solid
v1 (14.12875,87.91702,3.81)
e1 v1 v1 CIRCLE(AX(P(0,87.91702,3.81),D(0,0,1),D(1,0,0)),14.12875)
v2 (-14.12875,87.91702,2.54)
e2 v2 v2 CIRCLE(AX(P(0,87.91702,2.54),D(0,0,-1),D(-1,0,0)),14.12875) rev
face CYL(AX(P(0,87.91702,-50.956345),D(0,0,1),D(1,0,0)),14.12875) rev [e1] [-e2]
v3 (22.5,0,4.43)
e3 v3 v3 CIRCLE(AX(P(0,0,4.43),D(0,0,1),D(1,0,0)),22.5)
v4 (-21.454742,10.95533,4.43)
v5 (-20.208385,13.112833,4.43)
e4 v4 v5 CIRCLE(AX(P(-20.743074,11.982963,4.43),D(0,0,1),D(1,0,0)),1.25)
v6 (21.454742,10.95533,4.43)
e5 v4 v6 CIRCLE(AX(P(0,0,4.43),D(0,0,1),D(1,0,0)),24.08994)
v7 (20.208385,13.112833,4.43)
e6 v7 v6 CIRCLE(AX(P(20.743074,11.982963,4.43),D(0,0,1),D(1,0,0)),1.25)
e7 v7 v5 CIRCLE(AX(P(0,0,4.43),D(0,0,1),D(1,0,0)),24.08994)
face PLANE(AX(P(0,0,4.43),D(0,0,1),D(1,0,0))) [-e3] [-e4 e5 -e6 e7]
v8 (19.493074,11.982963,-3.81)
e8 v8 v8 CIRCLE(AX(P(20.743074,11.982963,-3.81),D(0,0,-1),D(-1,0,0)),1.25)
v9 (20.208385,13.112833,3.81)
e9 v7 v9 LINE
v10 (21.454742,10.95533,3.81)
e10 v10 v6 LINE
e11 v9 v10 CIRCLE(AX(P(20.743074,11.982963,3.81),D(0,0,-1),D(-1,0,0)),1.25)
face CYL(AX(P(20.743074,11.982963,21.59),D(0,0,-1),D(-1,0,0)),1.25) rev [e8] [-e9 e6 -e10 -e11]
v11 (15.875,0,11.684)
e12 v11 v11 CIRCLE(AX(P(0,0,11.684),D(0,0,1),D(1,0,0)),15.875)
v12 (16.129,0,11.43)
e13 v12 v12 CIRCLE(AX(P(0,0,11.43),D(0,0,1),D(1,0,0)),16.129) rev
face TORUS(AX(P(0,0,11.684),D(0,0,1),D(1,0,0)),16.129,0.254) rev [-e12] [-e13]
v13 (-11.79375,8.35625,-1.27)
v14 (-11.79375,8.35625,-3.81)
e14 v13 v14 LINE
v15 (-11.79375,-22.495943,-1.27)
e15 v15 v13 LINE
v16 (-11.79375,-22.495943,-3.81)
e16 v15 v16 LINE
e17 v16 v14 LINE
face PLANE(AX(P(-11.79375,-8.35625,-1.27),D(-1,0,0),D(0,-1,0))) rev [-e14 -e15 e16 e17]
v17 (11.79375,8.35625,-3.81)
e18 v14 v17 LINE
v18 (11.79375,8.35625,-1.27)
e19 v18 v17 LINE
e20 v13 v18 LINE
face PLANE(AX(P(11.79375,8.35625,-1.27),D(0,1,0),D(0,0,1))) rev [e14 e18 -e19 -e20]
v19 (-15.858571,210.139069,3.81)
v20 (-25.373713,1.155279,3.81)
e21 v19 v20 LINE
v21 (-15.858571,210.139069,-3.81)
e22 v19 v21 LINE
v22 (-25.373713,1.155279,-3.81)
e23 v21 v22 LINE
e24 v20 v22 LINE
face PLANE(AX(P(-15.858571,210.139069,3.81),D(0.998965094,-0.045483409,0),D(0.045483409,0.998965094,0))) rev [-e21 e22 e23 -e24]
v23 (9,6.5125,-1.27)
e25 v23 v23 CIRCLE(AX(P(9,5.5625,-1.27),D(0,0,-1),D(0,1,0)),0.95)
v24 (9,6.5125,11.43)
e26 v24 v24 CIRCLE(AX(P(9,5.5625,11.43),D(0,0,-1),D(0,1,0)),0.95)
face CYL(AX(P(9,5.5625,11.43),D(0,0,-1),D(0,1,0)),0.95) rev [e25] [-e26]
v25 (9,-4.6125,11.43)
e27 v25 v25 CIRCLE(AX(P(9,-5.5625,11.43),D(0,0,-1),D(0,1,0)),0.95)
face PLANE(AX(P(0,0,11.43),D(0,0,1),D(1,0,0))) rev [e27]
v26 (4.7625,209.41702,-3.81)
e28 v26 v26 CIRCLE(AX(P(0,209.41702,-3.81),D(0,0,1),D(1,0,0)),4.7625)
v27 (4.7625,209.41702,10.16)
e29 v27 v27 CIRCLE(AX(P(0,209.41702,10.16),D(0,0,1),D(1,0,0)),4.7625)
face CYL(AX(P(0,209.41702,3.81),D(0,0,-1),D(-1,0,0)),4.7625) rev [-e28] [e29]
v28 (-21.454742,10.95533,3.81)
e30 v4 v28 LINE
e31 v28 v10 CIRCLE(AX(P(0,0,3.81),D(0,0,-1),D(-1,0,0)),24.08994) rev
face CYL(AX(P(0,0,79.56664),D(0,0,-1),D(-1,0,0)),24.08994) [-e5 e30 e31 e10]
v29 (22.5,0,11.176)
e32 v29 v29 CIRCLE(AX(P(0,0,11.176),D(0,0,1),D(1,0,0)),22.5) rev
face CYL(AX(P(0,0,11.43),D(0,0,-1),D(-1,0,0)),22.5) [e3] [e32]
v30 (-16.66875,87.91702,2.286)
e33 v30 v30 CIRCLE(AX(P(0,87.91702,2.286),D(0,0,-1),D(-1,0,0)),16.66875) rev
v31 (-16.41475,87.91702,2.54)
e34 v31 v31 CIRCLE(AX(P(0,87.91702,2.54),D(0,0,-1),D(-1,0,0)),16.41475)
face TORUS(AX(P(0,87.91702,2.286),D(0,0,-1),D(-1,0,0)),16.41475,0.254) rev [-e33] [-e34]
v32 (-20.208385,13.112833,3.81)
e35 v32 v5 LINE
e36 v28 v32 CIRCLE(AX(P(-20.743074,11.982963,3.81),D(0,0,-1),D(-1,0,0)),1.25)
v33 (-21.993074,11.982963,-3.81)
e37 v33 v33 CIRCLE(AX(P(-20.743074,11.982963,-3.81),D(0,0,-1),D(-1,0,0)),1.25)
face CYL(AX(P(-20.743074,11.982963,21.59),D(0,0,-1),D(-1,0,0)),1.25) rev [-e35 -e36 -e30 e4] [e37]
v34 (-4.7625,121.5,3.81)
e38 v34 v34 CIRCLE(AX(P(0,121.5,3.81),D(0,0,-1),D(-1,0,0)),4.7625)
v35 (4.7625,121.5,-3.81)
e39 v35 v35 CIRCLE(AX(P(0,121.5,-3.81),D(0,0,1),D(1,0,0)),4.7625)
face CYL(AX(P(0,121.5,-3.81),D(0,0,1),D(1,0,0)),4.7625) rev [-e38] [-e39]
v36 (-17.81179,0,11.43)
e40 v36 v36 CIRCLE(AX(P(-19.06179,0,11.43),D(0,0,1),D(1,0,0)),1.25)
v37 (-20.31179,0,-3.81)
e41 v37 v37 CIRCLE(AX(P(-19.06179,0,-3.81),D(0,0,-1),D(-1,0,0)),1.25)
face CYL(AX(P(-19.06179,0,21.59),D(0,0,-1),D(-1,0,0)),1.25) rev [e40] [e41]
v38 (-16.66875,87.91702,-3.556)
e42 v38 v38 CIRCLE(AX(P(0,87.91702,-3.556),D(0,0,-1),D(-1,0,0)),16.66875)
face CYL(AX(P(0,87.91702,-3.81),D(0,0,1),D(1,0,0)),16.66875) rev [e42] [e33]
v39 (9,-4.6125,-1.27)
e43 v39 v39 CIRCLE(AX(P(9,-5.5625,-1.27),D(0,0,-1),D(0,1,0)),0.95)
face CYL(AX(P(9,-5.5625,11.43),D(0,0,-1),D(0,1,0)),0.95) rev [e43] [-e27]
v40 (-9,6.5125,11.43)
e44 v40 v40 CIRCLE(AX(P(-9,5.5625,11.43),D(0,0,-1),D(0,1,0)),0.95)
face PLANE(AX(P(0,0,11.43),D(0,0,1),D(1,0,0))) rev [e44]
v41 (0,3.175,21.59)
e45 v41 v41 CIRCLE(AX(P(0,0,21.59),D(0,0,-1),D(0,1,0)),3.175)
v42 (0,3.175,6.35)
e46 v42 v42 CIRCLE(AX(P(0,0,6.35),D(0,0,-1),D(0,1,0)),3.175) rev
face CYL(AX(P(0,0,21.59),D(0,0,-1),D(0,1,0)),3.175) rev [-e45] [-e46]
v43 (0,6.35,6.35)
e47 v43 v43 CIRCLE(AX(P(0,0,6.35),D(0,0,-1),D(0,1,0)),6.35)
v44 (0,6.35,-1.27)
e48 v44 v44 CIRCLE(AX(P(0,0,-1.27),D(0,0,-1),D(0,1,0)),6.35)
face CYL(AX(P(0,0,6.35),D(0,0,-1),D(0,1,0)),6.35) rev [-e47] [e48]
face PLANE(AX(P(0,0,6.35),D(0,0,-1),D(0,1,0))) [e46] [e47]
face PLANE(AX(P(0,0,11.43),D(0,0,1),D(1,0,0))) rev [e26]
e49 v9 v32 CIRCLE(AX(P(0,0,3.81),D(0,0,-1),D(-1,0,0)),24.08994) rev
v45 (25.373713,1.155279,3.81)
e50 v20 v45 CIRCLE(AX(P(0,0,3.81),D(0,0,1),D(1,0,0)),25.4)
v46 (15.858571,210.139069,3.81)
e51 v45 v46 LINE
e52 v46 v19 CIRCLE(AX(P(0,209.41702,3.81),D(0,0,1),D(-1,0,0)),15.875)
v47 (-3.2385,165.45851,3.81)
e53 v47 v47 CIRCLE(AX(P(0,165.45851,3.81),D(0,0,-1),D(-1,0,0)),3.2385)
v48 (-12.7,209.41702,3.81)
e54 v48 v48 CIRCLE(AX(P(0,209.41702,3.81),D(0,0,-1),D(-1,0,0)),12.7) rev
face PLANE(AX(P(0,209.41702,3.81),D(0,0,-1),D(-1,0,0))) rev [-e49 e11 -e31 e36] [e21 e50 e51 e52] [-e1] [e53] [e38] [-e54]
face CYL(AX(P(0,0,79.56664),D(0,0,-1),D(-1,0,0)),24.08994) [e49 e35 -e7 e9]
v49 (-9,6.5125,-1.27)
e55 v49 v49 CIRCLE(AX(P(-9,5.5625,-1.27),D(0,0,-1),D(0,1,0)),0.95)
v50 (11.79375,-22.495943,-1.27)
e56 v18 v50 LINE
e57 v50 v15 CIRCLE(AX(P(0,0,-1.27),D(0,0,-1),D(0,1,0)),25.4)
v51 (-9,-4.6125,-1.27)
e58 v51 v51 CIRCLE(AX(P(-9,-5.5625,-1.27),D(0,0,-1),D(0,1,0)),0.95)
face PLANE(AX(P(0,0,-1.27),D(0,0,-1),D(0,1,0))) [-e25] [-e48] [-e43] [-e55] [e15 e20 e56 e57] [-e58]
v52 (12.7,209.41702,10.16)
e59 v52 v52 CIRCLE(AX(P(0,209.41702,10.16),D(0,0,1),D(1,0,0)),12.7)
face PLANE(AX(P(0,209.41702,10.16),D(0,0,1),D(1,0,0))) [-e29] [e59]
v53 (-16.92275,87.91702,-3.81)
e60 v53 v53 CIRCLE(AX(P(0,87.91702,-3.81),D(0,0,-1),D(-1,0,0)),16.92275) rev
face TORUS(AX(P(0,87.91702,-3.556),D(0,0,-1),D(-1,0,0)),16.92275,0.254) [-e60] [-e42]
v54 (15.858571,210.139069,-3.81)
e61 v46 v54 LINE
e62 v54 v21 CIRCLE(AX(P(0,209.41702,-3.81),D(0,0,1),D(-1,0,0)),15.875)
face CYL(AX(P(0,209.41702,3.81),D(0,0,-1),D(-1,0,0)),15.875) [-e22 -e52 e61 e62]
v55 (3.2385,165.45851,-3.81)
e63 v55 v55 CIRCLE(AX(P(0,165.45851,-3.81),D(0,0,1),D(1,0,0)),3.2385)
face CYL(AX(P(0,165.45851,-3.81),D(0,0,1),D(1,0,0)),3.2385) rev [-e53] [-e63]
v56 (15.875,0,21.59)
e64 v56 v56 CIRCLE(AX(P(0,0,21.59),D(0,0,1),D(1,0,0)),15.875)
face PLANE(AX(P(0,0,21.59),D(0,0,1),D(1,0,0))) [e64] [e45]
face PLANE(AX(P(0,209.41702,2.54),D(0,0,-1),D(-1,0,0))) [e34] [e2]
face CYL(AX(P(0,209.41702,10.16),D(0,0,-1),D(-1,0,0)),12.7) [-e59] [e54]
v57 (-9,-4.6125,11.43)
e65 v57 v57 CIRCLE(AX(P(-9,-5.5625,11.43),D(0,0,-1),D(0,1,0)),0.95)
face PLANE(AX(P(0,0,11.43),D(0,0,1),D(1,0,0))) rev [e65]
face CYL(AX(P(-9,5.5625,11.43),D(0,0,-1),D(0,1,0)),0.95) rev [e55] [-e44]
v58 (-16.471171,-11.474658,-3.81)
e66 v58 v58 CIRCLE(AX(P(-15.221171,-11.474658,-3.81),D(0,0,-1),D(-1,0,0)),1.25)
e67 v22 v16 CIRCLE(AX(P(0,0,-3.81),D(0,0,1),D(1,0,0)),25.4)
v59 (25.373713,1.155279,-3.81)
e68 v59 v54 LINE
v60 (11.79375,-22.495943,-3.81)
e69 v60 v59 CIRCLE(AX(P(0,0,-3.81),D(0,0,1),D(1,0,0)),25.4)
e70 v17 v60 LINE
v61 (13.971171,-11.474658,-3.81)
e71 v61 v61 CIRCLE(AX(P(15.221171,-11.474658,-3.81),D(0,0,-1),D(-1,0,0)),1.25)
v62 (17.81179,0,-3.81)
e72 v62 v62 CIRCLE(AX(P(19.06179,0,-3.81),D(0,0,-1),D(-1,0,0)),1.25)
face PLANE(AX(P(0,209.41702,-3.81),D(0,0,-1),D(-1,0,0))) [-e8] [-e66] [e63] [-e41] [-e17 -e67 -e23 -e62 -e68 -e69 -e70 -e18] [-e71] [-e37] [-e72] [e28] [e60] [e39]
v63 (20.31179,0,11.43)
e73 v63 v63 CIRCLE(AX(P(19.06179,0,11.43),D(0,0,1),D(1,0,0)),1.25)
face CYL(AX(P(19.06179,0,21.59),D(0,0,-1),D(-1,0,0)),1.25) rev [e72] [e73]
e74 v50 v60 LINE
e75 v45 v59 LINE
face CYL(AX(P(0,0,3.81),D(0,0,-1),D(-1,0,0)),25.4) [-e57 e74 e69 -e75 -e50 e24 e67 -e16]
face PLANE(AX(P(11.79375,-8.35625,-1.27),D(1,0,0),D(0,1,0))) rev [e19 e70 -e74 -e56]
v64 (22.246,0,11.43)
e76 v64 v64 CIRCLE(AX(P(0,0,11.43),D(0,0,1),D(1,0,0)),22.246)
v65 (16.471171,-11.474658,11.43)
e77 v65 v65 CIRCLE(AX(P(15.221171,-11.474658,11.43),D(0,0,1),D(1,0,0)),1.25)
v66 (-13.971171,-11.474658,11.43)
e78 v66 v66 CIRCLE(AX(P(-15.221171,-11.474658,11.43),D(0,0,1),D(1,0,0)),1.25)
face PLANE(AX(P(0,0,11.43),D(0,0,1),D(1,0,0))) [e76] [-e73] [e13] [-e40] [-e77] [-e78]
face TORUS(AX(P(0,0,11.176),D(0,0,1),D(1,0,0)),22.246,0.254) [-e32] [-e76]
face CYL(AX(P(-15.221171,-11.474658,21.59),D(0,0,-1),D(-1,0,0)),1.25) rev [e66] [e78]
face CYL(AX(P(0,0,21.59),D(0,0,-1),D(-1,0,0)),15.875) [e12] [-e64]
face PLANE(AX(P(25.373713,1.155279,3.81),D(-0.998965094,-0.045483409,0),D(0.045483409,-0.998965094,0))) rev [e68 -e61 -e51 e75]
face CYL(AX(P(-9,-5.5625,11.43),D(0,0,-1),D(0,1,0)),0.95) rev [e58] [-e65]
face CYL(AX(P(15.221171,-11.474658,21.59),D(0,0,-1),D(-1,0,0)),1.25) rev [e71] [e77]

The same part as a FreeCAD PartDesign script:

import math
import FreeCAD as App
import Part
import Sketcher
from FreeCAD import Vector
Q = App.Units.Quantity


def edges_at(feature, points):
    """Names of the edges that pass closest to the given points."""
    edges = feature.Shape.Edges
    near = lambda p: min(range(len(edges)), key=lambda i: edges[i].distToShape(Part.Vertex(*p))[0])
    return sorted({f"Edge{near(p) + 1}" for p in points})

doc = App.newDocument("Part")
body = doc.addObject("PartDesign::Body", "Body")

sketch1 = body.newObject("Sketcher::SketchObject", "Sketch")
sketch1.AttachmentSupport = (doc.getObject("XY_Plane"), [""])
sketch1.MapMode = "FlatFace"
sketch1.addGeometry([
    Part.LineSegment(Vector(25.4, 1.2, 0), Vector(15.9, 210.1, 0)),
    Part.ArcOfCircle(Part.Circle(Vector(0, 209.4, 0), Vector(0, 0, 1), 15.9), math.radians(3), math.radians(177)),
    Part.LineSegment(Vector(-15.9, 210.1, 0), Vector(-25.4, 1.2, 0)),
    Part.ArcOfCircle(Part.Circle(Vector(0, 0, 0), Vector(0, 0, 1), 25.4), math.radians(177), math.radians(363)),
    Part.Circle(Vector(0, 209.4, 0), Vector(0, 0, 1), 4.8),
], False)
sketch1.addConstraint([
    Sketcher.Constraint("Tangent", 0, 2, 1, 1),
    Sketcher.Constraint("Tangent", 1, 2, 2, 1),
    Sketcher.Constraint("Tangent", 2, 2, 3, 1),
    Sketcher.Constraint("Tangent", 3, 2, 0, 1),
    Sketcher.Constraint("Coincident", 3, 3, -1, 1),
    Sketcher.Constraint("Coincident", 4, 3, 1, 3),
    Sketcher.Constraint("PointOnObject", 1, 3, -2),
    Sketcher.Constraint("Radius", 3, Q("1 in")),
    Sketcher.Constraint("Diameter", 4, Q("0.375 in")),
    Sketcher.Constraint("Radius", 1, Q("0.625 in")),
    Sketcher.Constraint("DistanceY", -1, 1, 1, 3, Q("209.41702 mm")),
])
pad1 = body.newObject("PartDesign::Pad", "Pad")
pad1.Profile = sketch1
pad1.Length = Q("0.3 in")
pad1.Midplane = True

sketch2 = body.newObject("Sketcher::SketchObject", "Sketch001")
sketch2.AttachmentSupport = (doc.getObject("XY_Plane"), [""])
sketch2.MapMode = "FlatFace"
sketch2.AttachmentOffset = App.Placement(Vector(0, 0, 0.15 * 25.4), App.Rotation())
sketch2.addGeometry(Part.Circle(Vector(0, 0, 0), Vector(0, 0, 1), 22), False)
sketch2.addConstraint([
    Sketcher.Constraint("Coincident", 0, 3, -1, 1),
    Sketcher.Constraint("Diameter", 0, Q("45 mm")),
])
pad2 = body.newObject("PartDesign::Pad", "Pad001")
pad2.Profile = sketch2
pad2.Length = Q("0.3 in")

sketch3 = body.newObject("Sketcher::SketchObject", "Sketch002")
sketch3.AttachmentSupport = (doc.getObject("XY_Plane"), [""])
sketch3.MapMode = "FlatFace"
sketch3.AttachmentOffset = App.Placement(Vector(0, 0, 0.15 * 25.4), App.Rotation())
sketch3.addGeometry(Part.Circle(Vector(0, 0, 0), Vector(0, 0, 1), 24), False)
sketch3.addConstraint([
    Sketcher.Constraint("Coincident", 0, 3, -1, 1),
    Sketcher.Constraint("Diameter", 0, Q("48.17988 mm")),
])
pad3 = body.newObject("PartDesign::Pad", "Pad002")
pad3.Profile = sketch3
pad3.Length = 0.62

sketch4 = body.newObject("Sketcher::SketchObject", "Sketch003")
sketch4.AttachmentSupport = (doc.getObject("XY_Plane"), [""])
sketch4.MapMode = "FlatFace"
sketch4.AttachmentOffset = App.Placement(Vector(0, 0, 0.15 * 25.4), App.Rotation())
sketch4.addGeometry([
    Part.Circle(Vector(0, 87.9, 0), Vector(0, 0, 1), 16.7),
    Part.Circle(Vector(0, 121.5, 0), Vector(0, 0, 1), 4.8),
], False)
sketch4.addConstraint([
    Sketcher.Constraint("PointOnObject", 0, 3, -2),
    Sketcher.Constraint("PointOnObject", 1, 3, -2),
    Sketcher.Constraint("Diameter", 0, Q("1.3125 in")),
    Sketcher.Constraint("Diameter", 1, Q("0.375 in")),
    Sketcher.Constraint("DistanceY", -1, 1, 0, 3, Q("3.4613 in")),
    Sketcher.Constraint("DistanceY", -1, 1, 1, 3, Q("121.5 mm")),
])
pocket1 = body.newObject("PartDesign::Pocket", "Pocket")
pocket1.Profile = sketch4
pocket1.Type = "ThroughAll"
pocket1.Midplane = True

sketch5 = body.newObject("Sketcher::SketchObject", "Sketch004")
sketch5.AttachmentSupport = (doc.getObject("XY_Plane"), [""])
sketch5.MapMode = "FlatFace"
sketch5.AttachmentOffset = App.Placement(Vector(0, 0, 0.15 * 25.4), App.Rotation())
sketch5.addGeometry([
    Part.Circle(Vector(0, 88, 0), Vector(0, 0, 1), 17),
    Part.Circle(Vector(0, 88, 0), Vector(0, 0, 1), 14),
], False)
sketch5.addConstraint([
    Sketcher.Constraint("Coincident", 1, 3, 0, 3),
    Sketcher.Constraint("PointOnObject", 0, 3, -2),
    Sketcher.Constraint("Diameter", 0, Q("1.3125 in")),
    Sketcher.Constraint("Diameter", 1, Q("1.1125 in")),
    Sketcher.Constraint("DistanceY", -1, 1, 0, 3, Q("3.4613 in")),
])
pad4 = body.newObject("PartDesign::Pad", "Pad003")
pad4.Profile = sketch5
pad4.Length = Q("0.05 in")
pad4.Reversed = True

sketch6 = body.newObject("Sketcher::SketchObject", "Sketch005")
sketch6.AttachmentSupport = (doc.getObject("XY_Plane"), [""])
sketch6.MapMode = "FlatFace"
sketch6.AttachmentOffset = App.Placement(Vector(0, 0, -0.15 * 25.4), App.Rotation())
sketch6.addGeometry([
    Part.LineSegment(Vector(-12, 8, 0), Vector(12, 8, 0)),
    Part.LineSegment(Vector(12, 8, 0), Vector(12, -22, 0)),
    Part.ArcOfCircle(Part.Circle(Vector(0, 0, 0), Vector(0, 0, 1), 25), math.radians(-118), math.radians(-62)),
    Part.LineSegment(Vector(-12, -22, 0), Vector(-12, 8, 0)),
], False)
sketch6.addConstraint([
    Sketcher.Constraint("Coincident", 0, 2, 1, 1),
    Sketcher.Constraint("Coincident", 1, 2, 2, 2),
    Sketcher.Constraint("Coincident", 2, 1, 3, 1),
    Sketcher.Constraint("Coincident", 3, 2, 0, 1),
    Sketcher.Constraint("Horizontal", 0),
    Sketcher.Constraint("Vertical", 1),
    Sketcher.Constraint("Vertical", 3),
    Sketcher.Constraint("Coincident", 2, 3, -1, 1),
    Sketcher.Constraint("Horizontal", 1, 2, 2, 1),
    Sketcher.Constraint("Radius", 2, Q("1 in")),
    Sketcher.Constraint("DistanceX", 0, 1, 0, 2, Q("23.5875 mm")),
    Sketcher.Constraint("DistanceY", 1, 2, 1, 1, Q("30.852193 mm")),
])
pocket2 = body.newObject("PartDesign::Pocket", "Pocket001")
pocket2.Profile = sketch6
pocket2.Length = Q("0.1 in")
pocket2.Reversed = True

sketch7 = body.newObject("Sketcher::SketchObject", "Sketch006")
sketch7.AttachmentSupport = (doc.getObject("XY_Plane"), [""])
sketch7.MapMode = "FlatFace"
sketch7.AttachmentOffset = App.Placement(Vector(0, 0, -0.05 * 25.4), App.Rotation())
sketch7.addGeometry([
    Part.Circle(Vector(-9, -5.6, 0), Vector(0, 0, 1), 0.9),
    Part.Circle(Vector(9, -5.6, 0), Vector(0, 0, 1), 0.9),
    Part.Circle(Vector(9, 5.6, 0), Vector(0, 0, 1), 0.9),
    Part.Circle(Vector(-9, 5.6, 0), Vector(0, 0, 1), 0.9),
], False)
sketch7.addConstraint([
    Sketcher.Constraint("Equal", 0, 1),
    Sketcher.Constraint("Equal", 1, 2),
    Sketcher.Constraint("Equal", 2, 3),
    Sketcher.Constraint("Symmetric", 0, 3, 2, 3, -1, 1),
    Sketcher.Constraint("Symmetric", 1, 3, 3, 3, -1, 1),
    Sketcher.Constraint("Symmetric", 0, 3, 1, 3, -2),
    Sketcher.Constraint("Diameter", 0, Q("1.9 mm")),
    Sketcher.Constraint("DistanceX", 0, 3, -1, 1, Q("9 mm")),
    Sketcher.Constraint("DistanceY", 0, 3, -1, 1, Q("5.5625 mm")),
])
pocket3 = body.newObject("PartDesign::Pocket", "Pocket002")
pocket3.Profile = sketch7
pocket3.Type = "ThroughAll"
pocket3.Reversed = True

sketch8 = body.newObject("Sketcher::SketchObject", "Sketch007")
sketch8.AttachmentSupport = (doc.getObject("XY_Plane"), [""])
sketch8.MapMode = "FlatFace"
sketch8.AttachmentOffset = App.Placement(Vector(0, 0, 0.15 * 25.4), App.Rotation())
sketch8.addGeometry([
    Part.Circle(Vector(0, 209.4, 0), Vector(0, 0, 1), 12.7),
    Part.Circle(Vector(0, 209.4, 0), Vector(0, 0, 1), 4.8),
], False)
sketch8.addConstraint([
    Sketcher.Constraint("Coincident", 1, 3, 0, 3),
    Sketcher.Constraint("PointOnObject", 0, 3, -2),
    Sketcher.Constraint("Diameter", 0, Q("1 in")),
    Sketcher.Constraint("Diameter", 1, Q("0.375 in")),
    Sketcher.Constraint("DistanceY", -1, 1, 0, 3, Q("209.41702 mm")),
])
pad5 = body.newObject("PartDesign::Pad", "Pad004")
pad5.Profile = sketch8
pad5.Length = Q("0.25 in")

sketch9 = body.newObject("Sketcher::SketchObject", "Sketch008")
sketch9.AttachmentSupport = (doc.getObject("XY_Plane"), [""])
sketch9.MapMode = "FlatFace"
sketch9.AttachmentOffset = App.Placement(Vector(0, 0, 0.45 * 25.4), App.Rotation())
sketch9.addGeometry(Part.Circle(Vector(0, 0, 0), Vector(0, 0, 1), 16), False)
sketch9.addConstraint([
    Sketcher.Constraint("Coincident", 0, 3, -1, 1),
    Sketcher.Constraint("Diameter", 0, Q("1.25 in")),
])
pad6 = body.newObject("PartDesign::Pad", "Pad005")
pad6.Profile = sketch9
pad6.Length = Q("0.4 in")

sketch10 = body.newObject("Sketcher::SketchObject", "Sketch009")
sketch10.AttachmentSupport = (doc.getObject("XY_Plane"), [""])
sketch10.MapMode = "FlatFace"
sketch10.AttachmentOffset = App.Placement(Vector(0, 0, -0.15 * 25.4), App.Rotation())
sketch10.addGeometry([
    Part.Circle(Vector(20.7, 12, 0), Vector(0, 0, 1), 1.2),
    Part.Circle(Vector(19.1, 0, 0), Vector(0, 0, 1), 1.2),
    Part.Circle(Vector(15.2, -11.5, 0), Vector(0, 0, 1), 1.2),
    Part.Circle(Vector(-15.2, -11.5, 0), Vector(0, 0, 1), 1.2),
    Part.Circle(Vector(-19.1, 0, 0), Vector(0, 0, 1), 1.2),
    Part.Circle(Vector(-20.7, 12, 0), Vector(0, 0, 1), 1.2),
], False)
sketch10.addConstraint([
    Sketcher.Constraint("Equal", 0, 1),
    Sketcher.Constraint("Equal", 1, 2),
    Sketcher.Constraint("Equal", 2, 3),
    Sketcher.Constraint("Equal", 3, 4),
    Sketcher.Constraint("Equal", 4, 5),
    Sketcher.Constraint("Symmetric", 1, 3, 4, 3, -1, 1),
    Sketcher.Constraint("Symmetric", 2, 3, 3, 3, -2),
    Sketcher.Constraint("Symmetric", 0, 3, 5, 3, -2),
    Sketcher.Constraint("PointOnObject", 1, 3, -1),
    Sketcher.Constraint("Diameter", 0, Q("2.5 mm")),
    Sketcher.Constraint("DistanceX", -1, 1, 1, 3, Q("19.06179 mm")),
    Sketcher.Constraint("DistanceX", -1, 1, 2, 3, Q("15.221171 mm")),
    Sketcher.Constraint("DistanceY", 2, 3, 0, 3, Q("23.45762 mm")),
    Sketcher.Constraint("DistanceX", -1, 1, 0, 3, Q("20.743074 mm")),
    Sketcher.Constraint("DistanceY", -1, 1, 0, 3, Q("11.982963 mm")),
])
pocket4 = body.newObject("PartDesign::Pocket", "Pocket003")
pocket4.Profile = sketch10
pocket4.Type = "ThroughAll"
pocket4.Midplane = True

sketch11 = body.newObject("Sketcher::SketchObject", "Sketch010")
sketch11.AttachmentSupport = (doc.getObject("XY_Plane"), [""])
sketch11.MapMode = "FlatFace"
sketch11.AttachmentOffset = App.Placement(Vector(0, 0, 0.15 * 25.4), App.Rotation())
sketch11.addGeometry(Part.Circle(Vector(0, 165.5, 0), Vector(0, 0, 1), 3.2), False)
sketch11.addConstraint([
    Sketcher.Constraint("PointOnObject", 0, 3, -2),
    Sketcher.Constraint("Diameter", 0, Q("0.255 in")),
    Sketcher.Constraint("DistanceY", -1, 1, 0, 3, Q("165.45851 mm")),
])
pocket5 = body.newObject("PartDesign::Pocket", "Pocket004")
pocket5.Profile = sketch11
pocket5.Type = "ThroughAll"
pocket5.Midplane = True

sketch12 = body.newObject("Sketcher::SketchObject", "Sketch011")
sketch12.AttachmentSupport = (doc.getObject("XY_Plane"), [""])
sketch12.MapMode = "FlatFace"
sketch12.AttachmentOffset = App.Placement(Vector(0, 0, -0.05 * 25.4), App.Rotation())
sketch12.addGeometry(Part.Circle(Vector(0, 0, 0), Vector(0, 0, 1), 3.2), False)
sketch12.addConstraint([
    Sketcher.Constraint("Coincident", 0, 3, -1, 1),
    Sketcher.Constraint("Diameter", 0, Q("0.25 in")),
])
pocket6 = body.newObject("PartDesign::Pocket", "Pocket005")
pocket6.Profile = sketch12
pocket6.Type = "ThroughAll"
pocket6.Reversed = True

sketch13 = body.newObject("Sketcher::SketchObject", "Sketch012")
sketch13.AttachmentSupport = (doc.getObject("XY_Plane"), [""])
sketch13.MapMode = "FlatFace"
sketch13.AttachmentOffset = App.Placement(Vector(0, 0, -0.05 * 25.4), App.Rotation())
sketch13.addGeometry(Part.Circle(Vector(0, 0, 0), Vector(0, 0, 1), 6), False)
sketch13.addConstraint([
    Sketcher.Constraint("Coincident", 0, 3, -1, 1),
    Sketcher.Constraint("Diameter", 0, Q("0.5 in")),
])
pocket7 = body.newObject("PartDesign::Pocket", "Pocket006")
pocket7.Profile = sketch13
pocket7.Length = Q("0.3 in")
pocket7.Reversed = True
doc.recompute()

fillet = body.newObject("PartDesign::Fillet", "Fillet")
fillet.Base = (pocket7, edges_at(pocket7, [
    (-22.5, 0, 11.43),
    (-16.669, 87.917, -3.81),
    (-16.669, 87.917, 2.54),
    (-15.875, 0, 11.43),
]))
fillet.Radius = Q("0.01 in")

doc.recompute()
